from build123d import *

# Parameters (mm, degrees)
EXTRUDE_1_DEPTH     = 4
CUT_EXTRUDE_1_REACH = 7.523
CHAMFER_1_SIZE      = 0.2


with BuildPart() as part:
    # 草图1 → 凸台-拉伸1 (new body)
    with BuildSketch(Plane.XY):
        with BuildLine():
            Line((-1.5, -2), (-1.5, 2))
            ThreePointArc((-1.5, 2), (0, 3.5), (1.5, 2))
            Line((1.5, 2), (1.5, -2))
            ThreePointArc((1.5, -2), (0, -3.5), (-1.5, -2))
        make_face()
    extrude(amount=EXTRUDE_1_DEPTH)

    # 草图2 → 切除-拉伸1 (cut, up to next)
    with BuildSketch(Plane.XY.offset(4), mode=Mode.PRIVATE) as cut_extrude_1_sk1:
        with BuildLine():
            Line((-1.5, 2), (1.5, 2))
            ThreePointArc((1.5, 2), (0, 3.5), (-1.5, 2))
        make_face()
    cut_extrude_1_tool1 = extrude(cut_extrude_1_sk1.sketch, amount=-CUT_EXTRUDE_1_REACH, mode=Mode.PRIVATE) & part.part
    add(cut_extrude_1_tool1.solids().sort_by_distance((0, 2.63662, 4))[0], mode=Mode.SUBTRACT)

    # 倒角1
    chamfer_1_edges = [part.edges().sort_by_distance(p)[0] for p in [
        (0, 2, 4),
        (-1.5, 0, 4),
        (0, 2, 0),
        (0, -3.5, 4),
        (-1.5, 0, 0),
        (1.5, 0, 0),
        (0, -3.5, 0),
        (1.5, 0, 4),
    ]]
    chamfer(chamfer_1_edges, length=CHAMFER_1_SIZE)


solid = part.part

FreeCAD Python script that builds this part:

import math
import FreeCAD as App
import Part
import Sketcher


def edges_at(feature, points):
    """Names of the edges that pass closest to the given points."""
    edges = feature.Shape.Edges
    near = lambda p: min(range(len(edges)), key=lambda i: edges[i].distToShape(Part.Vertex(*p))[0])
    return sorted({f"Edge{near(p) + 1}" for p in points})

doc = App.newDocument("Part")
body = doc.addObject("PartDesign::Body", "Body")

sketch1 = body.newObject("Sketcher::SketchObject", "Sketch")
sketch1.AttachmentSupport = (doc.getObject("XY_Plane"), [""])
sketch1.MapMode = "FlatFace"
sketch1.addGeometry(Part.LineSegment(App.Vector(-1.5, 2, 0), App.Vector(-1.5, -2, 0)), False)
sketch1.addGeometry(Part.ArcOfCircle(Part.Circle(App.Vector(0, -2, 0), App.Vector(0, 0, 1), 1.5), math.radians(180), math.radians(360)), False)
sketch1.addGeometry(Part.LineSegment(App.Vector(1.5, -2, 0), App.Vector(1.5, 2, 0)), False)
sketch1.addGeometry(Part.ArcOfCircle(Part.Circle(App.Vector(0, 2, 0), App.Vector(0, 0, 1), 1.5), math.radians(0), math.radians(180)), False)
sketch1.addConstraint(Sketcher.Constraint("Tangent", 0, 2, 1, 1))
sketch1.addConstraint(Sketcher.Constraint("Tangent", 1, 2, 2, 1))
sketch1.addConstraint(Sketcher.Constraint("Tangent", 2, 2, 3, 1))
sketch1.addConstraint(Sketcher.Constraint("Tangent", 3, 2, 0, 1))
sketch1.addConstraint(Sketcher.Constraint("Vertical", 0))
sketch1.addConstraint(Sketcher.Constraint("Vertical", 2))
sketch1.addConstraint(Sketcher.Constraint("Symmetric", 1, 3, 3, 3, -1, 1))
sketch1.addConstraint(Sketcher.Constraint("Radius", 1, 1.5))
sketch1.addConstraint(Sketcher.Constraint("DistanceY", 0, 2, 0, 1, 4.0))
pad1 = body.newObject("PartDesign::Pad", "Pad")
pad1.Profile = sketch1
pad1.Length = 4

sketch2 = body.newObject("Sketcher::SketchObject", "Sketch001")
sketch2.AttachmentSupport = (doc.getObject("XY_Plane"), [""])
sketch2.MapMode = "FlatFace"
sketch2.AttachmentOffset = App.Placement(App.Vector(0, 0, 4), App.Rotation())
sketch2.addGeometry(Part.LineSegment(App.Vector(-1.5, 2, 0), App.Vector(1.5, 2, 0)), False)
sketch2.addGeometry(Part.ArcOfCircle(Part.Circle(App.Vector(0, 2, 0), App.Vector(0, 0, 1), 1.5), math.radians(0), math.radians(180)), False)
sketch2.addConstraint(Sketcher.Constraint("Coincident", 0, 1, 1, 2))
sketch2.addConstraint(Sketcher.Constraint("Coincident", 1, 1, 0, 2))
sketch2.addConstraint(Sketcher.Constraint("Horizontal", 0))
sketch2.addConstraint(Sketcher.Constraint("PointOnObject", 1, 3, -2))
sketch2.addConstraint(Sketcher.Constraint("Horizontal", 1, 3, 0, 1))
sketch2.addConstraint(Sketcher.Constraint("Radius", 1, 1.5))
sketch2.addConstraint(Sketcher.Constraint("DistanceY", -1, 1, 1, 3, 2.0))
pocket1 = body.newObject("PartDesign::Pocket", "Pocket")
pocket1.Profile = sketch2
pocket1.Type = "UpToFirst"
doc.recompute()

chamfer = body.newObject("PartDesign::Chamfer", "Chamfer")
chamfer.Base = (pocket1, edges_at(pocket1, [
    (0, 2, 4),
    (-1.5, 0, 4),
    (0, 2, 0),
    (0, -3.5, 4),
    (-1.5, 0, 0),
    (1.5, 0, 0),
    (0, -3.5, 0),
    (1.5, 0, 4),
]))
chamfer.Size = 0.2

doc.recompute()
